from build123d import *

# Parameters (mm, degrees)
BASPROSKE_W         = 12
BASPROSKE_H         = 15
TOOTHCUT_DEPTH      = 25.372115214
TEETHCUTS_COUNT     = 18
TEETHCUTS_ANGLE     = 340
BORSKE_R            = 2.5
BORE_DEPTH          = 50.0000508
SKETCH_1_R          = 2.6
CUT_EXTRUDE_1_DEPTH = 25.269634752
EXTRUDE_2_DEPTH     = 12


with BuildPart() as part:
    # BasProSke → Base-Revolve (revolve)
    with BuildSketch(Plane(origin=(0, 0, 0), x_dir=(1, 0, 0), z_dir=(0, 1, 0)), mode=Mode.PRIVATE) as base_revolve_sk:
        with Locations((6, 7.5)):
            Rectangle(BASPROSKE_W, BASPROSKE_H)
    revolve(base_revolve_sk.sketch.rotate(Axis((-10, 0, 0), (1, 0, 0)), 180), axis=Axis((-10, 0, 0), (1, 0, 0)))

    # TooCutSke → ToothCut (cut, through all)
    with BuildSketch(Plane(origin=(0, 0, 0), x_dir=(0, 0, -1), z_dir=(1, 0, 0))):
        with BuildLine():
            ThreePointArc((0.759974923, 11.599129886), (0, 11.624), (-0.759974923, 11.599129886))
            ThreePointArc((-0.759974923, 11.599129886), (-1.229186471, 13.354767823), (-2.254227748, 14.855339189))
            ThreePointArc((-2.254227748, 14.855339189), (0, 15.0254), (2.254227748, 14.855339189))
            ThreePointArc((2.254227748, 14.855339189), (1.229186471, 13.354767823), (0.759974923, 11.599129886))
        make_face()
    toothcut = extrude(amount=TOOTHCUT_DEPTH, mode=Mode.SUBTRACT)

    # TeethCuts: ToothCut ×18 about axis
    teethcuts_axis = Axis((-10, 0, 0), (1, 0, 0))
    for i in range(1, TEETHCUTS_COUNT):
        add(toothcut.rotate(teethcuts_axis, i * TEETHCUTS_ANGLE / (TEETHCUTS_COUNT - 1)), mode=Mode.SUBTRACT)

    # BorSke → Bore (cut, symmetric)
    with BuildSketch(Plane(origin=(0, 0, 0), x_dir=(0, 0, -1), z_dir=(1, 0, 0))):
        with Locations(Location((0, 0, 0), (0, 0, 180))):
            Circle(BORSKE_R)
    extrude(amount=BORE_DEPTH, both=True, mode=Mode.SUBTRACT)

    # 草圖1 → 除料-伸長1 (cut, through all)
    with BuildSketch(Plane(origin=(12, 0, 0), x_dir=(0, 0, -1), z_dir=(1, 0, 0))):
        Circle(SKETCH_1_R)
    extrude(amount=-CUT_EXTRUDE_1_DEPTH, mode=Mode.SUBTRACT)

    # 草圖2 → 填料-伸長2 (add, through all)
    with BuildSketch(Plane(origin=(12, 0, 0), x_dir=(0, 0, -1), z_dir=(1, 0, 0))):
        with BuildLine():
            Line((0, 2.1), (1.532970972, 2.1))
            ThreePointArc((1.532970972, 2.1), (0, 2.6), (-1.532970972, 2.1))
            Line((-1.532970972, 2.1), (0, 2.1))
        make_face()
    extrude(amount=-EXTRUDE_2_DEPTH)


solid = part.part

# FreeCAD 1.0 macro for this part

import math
import FreeCAD as App
import Part
import Sketcher
from FreeCAD import Vector
Q = App.Units.Quantity

doc = App.newDocument("Part")
body = doc.addObject("PartDesign::Body", "Body")

sketch1 = body.newObject("Sketcher::SketchObject", "Sketch")
sketch1.AttachmentSupport = (doc.getObject("XZ_Plane"), [""])
sketch1.MapMode = "FlatFace"
sketch1.addGeometry([
    Part.LineSegment(Vector(0, -15, 0), Vector(0, 0, 0)),
    Part.LineSegment(Vector(0, 0, 0), Vector(12, 0, 0)),
    Part.LineSegment(Vector(12, 0, 0), Vector(12, -15, 0)),
    Part.LineSegment(Vector(12, -15, 0), Vector(0, -15, 0)),
], False)
sketch1.addConstraint([
    Sketcher.Constraint("Coincident", 0, 2, 1, 1),
    Sketcher.Constraint("Coincident", 1, 2, 2, 1),
    Sketcher.Constraint("Coincident", 2, 2, 3, 1),
    Sketcher.Constraint("Coincident", 3, 2, 0, 1),
    Sketcher.Constraint("Vertical", 0),
    Sketcher.Constraint("Horizontal", 1),
    Sketcher.Constraint("Vertical", 2),
    Sketcher.Constraint("Horizontal", 3),
    Sketcher.Constraint("Coincident", 0, 2, -1, 1),
    Sketcher.Constraint("DistanceX", 1, 1, 1, 2, Q("12 mm")),
    Sketcher.Constraint("DistanceY", 0, 1, 0, 2, Q("15 mm")),
])
revolution = body.newObject("PartDesign::Revolution", "Revolution")
revolution.Profile = sketch1
revolution.ReferenceAxis = (sketch1, ["H_Axis"])
revolution.Angle = 360

sketch2 = body.newObject("Sketcher::SketchObject", "Sketch001")
sketch2.AttachmentSupport = (doc.getObject("YZ_Plane"), [""])
sketch2.MapMode = "FlatFace"
sketch2.addGeometry([
    Part.ArcOfCircle(Part.Circle(Vector(0, 0, 0), Vector(0, 0, 1), 11.6), math.radians(-3.75), math.radians(3.75)),
    Part.ArcOfCircle(Part.Circle(Vector(11.1, -6.1, 0), Vector(0, 0, 1), 5.4), math.radians(46), math.radians(85)),
    Part.ArcOfCircle(Part.Circle(Vector(0, 0, 0), Vector(0, 0, 1), 15), math.radians(-8.63), math.radians(8.63)),
    Part.ArcOfCircle(Part.Circle(Vector(11.1, 6.1, 0), Vector(0, 0, 1), 5.4), math.radians(-85), math.radians(-46)),
], False)
sketch2.addConstraint([
    Sketcher.Constraint("Coincident", 0, 1, 1, 2),
    Sketcher.Constraint("Coincident", 1, 1, 2, 1),
    Sketcher.Constraint("Coincident", 2, 2, 3, 2),
    Sketcher.Constraint("Coincident", 3, 1, 0, 2),
    Sketcher.Constraint("Coincident", 0, 3, -1, 1),
    Sketcher.Constraint("Coincident", 2, 3, -1, 1),
    Sketcher.Constraint("Equal", 1, 3),
    Sketcher.Constraint("Symmetric", 1, 3, 3, 3, -1),
    Sketcher.Constraint("Radius", 1, Q("5.4 mm")),
    Sketcher.Constraint("Radius", 0, Q("11.624 mm")),
    Sketcher.Constraint("Radius", 2, Q("15.0254 mm")),
    Sketcher.Constraint("DistanceX", -1, 1, 1, 3, Q("11.102561 mm")),
    Sketcher.Constraint("DistanceX", -1, 1, 0, 1, Q("11.59913 mm")),
])
pocket1 = body.newObject("PartDesign::Pocket", "Pocket")
pocket1.Profile = sketch2
pocket1.Type = "ThroughAll"
pocket1.Reversed = True
doc.recompute()

polarpattern = body.newObject("PartDesign::PolarPattern", "PolarPattern")
polarpattern.Originals = [pocket1]
polarpattern.Axis = (doc.getObject("X_Axis"), [""])
polarpattern.Angle = 360
polarpattern.Occurrences = 18
body.Tip = polarpattern

sketch3 = body.newObject("Sketcher::SketchObject", "Sketch002")
sketch3.AttachmentSupport = (doc.getObject("YZ_Plane"), [""])
sketch3.MapMode = "FlatFace"
sketch3.addGeometry(Part.Circle(Vector(0, 0, 0), Vector(0, 0, 1), 2.5), False)
sketch3.addConstraint([
    Sketcher.Constraint("Coincident", 0, 3, -1, 1),
    Sketcher.Constraint("Diameter", 0, Q("5 mm")),
])
pocket2 = body.newObject("PartDesign::Pocket", "Pocket001")
pocket2.Profile = sketch3
pocket2.Length = 100.000102
pocket2.Midplane = True

sketch4 = body.newObject("Sketcher::SketchObject", "Sketch003")
sketch4.AttachmentSupport = (doc.getObject("YZ_Plane"), [""])
sketch4.MapMode = "FlatFace"
sketch4.AttachmentOffset = App.Placement(Vector(0, 0, 12), App.Rotation())
sketch4.addGeometry(Part.Circle(Vector(0, 0, 0), Vector(0, 0, 1), 2.6), False)
sketch4.addConstraint([
    Sketcher.Constraint("Coincident", 0, 3, -1, 1),
    Sketcher.Constraint("Diameter", 0, Q("5.2 mm")),
])
pocket3 = body.newObject("PartDesign::Pocket", "Pocket002")
pocket3.Profile = sketch4
pocket3.Type = "ThroughAll"

sketch5 = body.newObject("Sketcher::SketchObject", "Sketch004")
sketch5.AttachmentSupport = (doc.getObject("YZ_Plane"), [""])
sketch5.MapMode = "FlatFace"
sketch5.AttachmentOffset = App.Placement(Vector(0, 0, 12), App.Rotation())
sketch5.addGeometry([
    Part.ArcOfCircle(Part.Circle(Vector(0, 0, 0), Vector(0, 0, 1), 2.6), math.radians(-36), math.radians(36)),
    Part.LineSegment(Vector(2.1, 1.5, 0), Vector(2.1, -1.5, 0)),
], False)
sketch5.addConstraint([
    Sketcher.Constraint("Coincident", 0, 1, 1, 2),
    Sketcher.Constraint("Coincident", 1, 1, 0, 2),
    Sketcher.Constraint("Vertical", 1),
    Sketcher.Constraint("Coincident", 0, 3, -1, 1),
    Sketcher.Constraint("Radius", 0, Q("2.6 mm")),
    Sketcher.Constraint("DistanceX", -1, 1, 0, 1, Q("2.1 mm")),
])
pad1 = body.newObject("PartDesign::Pad", "Pad")
pad1.Profile = sketch5
pad1.Length = 12
pad1.Reversed = True

doc.recompute()
